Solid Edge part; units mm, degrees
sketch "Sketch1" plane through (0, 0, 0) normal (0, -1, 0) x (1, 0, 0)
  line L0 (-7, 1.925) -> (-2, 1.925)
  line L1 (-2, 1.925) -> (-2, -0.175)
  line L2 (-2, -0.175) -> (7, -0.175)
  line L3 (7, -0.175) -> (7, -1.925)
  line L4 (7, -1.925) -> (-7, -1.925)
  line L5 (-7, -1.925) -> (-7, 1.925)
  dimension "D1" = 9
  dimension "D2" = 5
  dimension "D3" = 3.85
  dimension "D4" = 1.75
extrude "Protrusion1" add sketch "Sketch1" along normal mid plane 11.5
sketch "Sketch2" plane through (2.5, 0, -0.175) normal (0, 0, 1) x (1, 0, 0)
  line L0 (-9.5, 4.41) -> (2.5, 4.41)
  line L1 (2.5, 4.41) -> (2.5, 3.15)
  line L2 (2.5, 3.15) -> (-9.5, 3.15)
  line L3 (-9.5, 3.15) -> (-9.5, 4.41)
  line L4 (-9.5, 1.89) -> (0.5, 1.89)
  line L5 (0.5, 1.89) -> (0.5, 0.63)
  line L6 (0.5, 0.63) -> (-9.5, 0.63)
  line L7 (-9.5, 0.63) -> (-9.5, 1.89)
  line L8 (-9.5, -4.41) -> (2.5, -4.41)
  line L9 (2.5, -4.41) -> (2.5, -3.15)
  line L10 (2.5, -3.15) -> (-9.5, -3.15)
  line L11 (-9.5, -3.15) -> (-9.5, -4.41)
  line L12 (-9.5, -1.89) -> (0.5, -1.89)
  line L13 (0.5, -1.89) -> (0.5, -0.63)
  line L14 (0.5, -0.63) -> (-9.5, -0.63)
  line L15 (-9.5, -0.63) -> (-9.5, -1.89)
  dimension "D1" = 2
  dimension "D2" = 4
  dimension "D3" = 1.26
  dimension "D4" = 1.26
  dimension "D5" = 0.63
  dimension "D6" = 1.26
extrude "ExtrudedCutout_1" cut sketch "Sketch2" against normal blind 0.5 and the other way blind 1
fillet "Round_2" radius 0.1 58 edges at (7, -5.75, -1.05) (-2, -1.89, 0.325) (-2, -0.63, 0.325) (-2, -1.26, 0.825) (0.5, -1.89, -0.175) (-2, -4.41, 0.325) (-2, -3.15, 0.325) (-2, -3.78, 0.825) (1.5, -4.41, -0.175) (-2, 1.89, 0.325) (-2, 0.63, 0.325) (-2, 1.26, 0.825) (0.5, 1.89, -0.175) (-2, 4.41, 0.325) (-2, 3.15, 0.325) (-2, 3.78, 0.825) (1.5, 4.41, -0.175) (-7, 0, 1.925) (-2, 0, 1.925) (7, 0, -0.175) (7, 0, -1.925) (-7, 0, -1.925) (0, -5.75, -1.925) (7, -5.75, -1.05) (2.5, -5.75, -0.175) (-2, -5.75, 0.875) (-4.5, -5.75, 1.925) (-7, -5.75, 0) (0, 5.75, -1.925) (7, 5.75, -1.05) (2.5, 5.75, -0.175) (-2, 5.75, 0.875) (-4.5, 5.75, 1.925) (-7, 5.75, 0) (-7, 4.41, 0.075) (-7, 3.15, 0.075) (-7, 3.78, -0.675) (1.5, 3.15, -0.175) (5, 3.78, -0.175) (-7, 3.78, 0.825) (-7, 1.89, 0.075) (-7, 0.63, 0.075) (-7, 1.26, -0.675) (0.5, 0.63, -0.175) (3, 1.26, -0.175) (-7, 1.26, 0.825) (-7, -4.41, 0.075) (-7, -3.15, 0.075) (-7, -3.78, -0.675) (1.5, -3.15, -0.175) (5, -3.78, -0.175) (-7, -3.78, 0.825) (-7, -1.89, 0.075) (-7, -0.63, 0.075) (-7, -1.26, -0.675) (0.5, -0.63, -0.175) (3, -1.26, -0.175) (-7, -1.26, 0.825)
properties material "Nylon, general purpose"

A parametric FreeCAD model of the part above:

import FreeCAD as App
import Part
import Sketcher

V = App.Vector


def edges_at(feature, points):
    """Names of the edges that pass closest to the given points."""
    edges = feature.Shape.Edges
    near = lambda p: min(range(len(edges)), key=lambda i: edges[i].distToShape(Part.Vertex(*p))[0])
    return sorted({f"Edge{near(p) + 1}" for p in points})

doc = App.newDocument("Part")
params = doc.addObject("Spreadsheet::Sheet", "Params")
for row, (alias, value) in enumerate([
    ("sketch1_width", "5 mm"),
    ("sketch1_width2", "14 mm"),
    ("sketch1_height", "2.1 mm"),
    ("sketch1_height2", "3.85 mm"),
    ("pad1_length", "11.5 mm"),
    ("sketch2_width", "12 mm"),
    ("sketch2_width2", "10 mm"),
    ("sketch2_height", "1.26 mm"),
    ("pocket1_length", "0.5 mm"),
    ("pocket1_length2", "1 mm"),
    ("fillet_radius", "0.1 mm"),
], start=1):
    params.set(f"A{row}", alias)
    params.set(f"B{row}", "=" + value)
    params.setAlias(f"B{row}", alias)

body = doc.addObject("PartDesign::Body", "Body")

# Sketch on XZ plane
sketch1 = doc.addObject("Sketcher::SketchObject", "Sketch")
body.addObject(sketch1)
sketch1.AttachmentSupport = (doc.XZ_Plane, [""])
sketch1.MapMode = "FlatFace"
sketch1.addGeometry([
    Part.LineSegment(V(-2, 1.9, 0), V(-7, 1.9, 0)),  # 0
    Part.LineSegment(V(-7, 1.9, 0), V(-7, -1.9, 0)),  # 1
    Part.LineSegment(V(-7, -1.9, 0), V(7, -1.9, 0)),  # 2
    Part.LineSegment(V(7, -1.9, 0), V(7, -0.2, 0)),  # 3
    Part.LineSegment(V(7, -0.2, 0), V(-2, -0.2, 0)),  # 4
    Part.LineSegment(V(-2, -0.2, 0), V(-2, 1.9, 0)),  # 5
], False)
sketch1.addConstraint([
    Sketcher.Constraint("Coincident", 0, 2, 1, 1),
    Sketcher.Constraint("Coincident", 1, 2, 2, 1),
    Sketcher.Constraint("Coincident", 2, 2, 3, 1),
    Sketcher.Constraint("Coincident", 3, 2, 4, 1),
    Sketcher.Constraint("Coincident", 4, 2, 5, 1),
    Sketcher.Constraint("Coincident", 5, 2, 0, 1),
    Sketcher.Constraint("Horizontal", 0),
    Sketcher.Constraint("Vertical", 1),
    Sketcher.Constraint("Horizontal", 2),
    Sketcher.Constraint("Vertical", 3),
    Sketcher.Constraint("Horizontal", 4),
    Sketcher.Constraint("Vertical", 5),
    Sketcher.Constraint("Symmetric", 0, 2, 2, 2, -1, 1),
    Sketcher.Constraint("DistanceX", 0, 2, 0, 1, 5.0),
    Sketcher.Constraint("DistanceX", 2, 1, 2, 2, 14.0),
    Sketcher.Constraint("DistanceY", 5, 1, 5, 2, 2.1),
    Sketcher.Constraint("DistanceY", 1, 2, 1, 1, 3.85),
])
sketch1.setExpression("Constraints[13]", "Params.sketch1_width")
sketch1.setExpression("Constraints[14]", "Params.sketch1_width2")
sketch1.setExpression("Constraints[15]", "Params.sketch1_height")
sketch1.setExpression("Constraints[16]", "Params.sketch1_height2")
pad1 = doc.addObject("PartDesign::Pad", "Pad")
body.addObject(pad1)
pad1.Profile = sketch1
pad1.setExpression("Length", "Params.pad1_length")
pad1.Midplane = True

# Sketch on XY plane
sketch2 = doc.addObject("Sketcher::SketchObject", "Sketch001")
body.addObject(sketch2)
sketch2.AttachmentSupport = (doc.XY_Plane, [""])
sketch2.MapMode = "FlatFace"
sketch2.AttachmentOffset = App.Placement(V(0, 0, -0.175), App.Rotation())
sketch2.addGeometry([
    Part.LineSegment(V(5, 4.4, 0), V(-7, 4.4, 0)),  # 0
    Part.LineSegment(V(-7, 4.4, 0), V(-7, 3.1, 0)),  # 1
    Part.LineSegment(V(-7, 3.1, 0), V(5, 3.1, 0)),  # 2
    Part.LineSegment(V(5, 3.1, 0), V(5, 4.4, 0)),  # 3
    Part.LineSegment(V(3, 1.9, 0), V(-7, 1.9, 0)),  # 4
    Part.LineSegment(V(-7, 1.9, 0), V(-7, 0.6, 0)),  # 5
    Part.LineSegment(V(-7, 0.6, 0), V(3, 0.6, 0)),  # 6
    Part.LineSegment(V(3, 0.6, 0), V(3, 1.9, 0)),  # 7
    Part.LineSegment(V(-7, -3.1, 0), V(-7, -4.4, 0)),  # 8
    Part.LineSegment(V(-7, -4.4, 0), V(5, -4.4, 0)),  # 9
    Part.LineSegment(V(5, -4.4, 0), V(5, -3.1, 0)),  # 10
    Part.LineSegment(V(5, -3.1, 0), V(-7, -3.1, 0)),  # 11
    Part.LineSegment(V(-7, -0.6, 0), V(-7, -1.9, 0)),  # 12
    Part.LineSegment(V(-7, -1.9, 0), V(3, -1.9, 0)),  # 13
    Part.LineSegment(V(3, -1.9, 0), V(3, -0.6, 0)),  # 14
    Part.LineSegment(V(3, -0.6, 0), V(-7, -0.6, 0)),  # 15
], False)
sketch2.addConstraint([
    Sketcher.Constraint("Coincident", 0, 2, 1, 1),
    Sketcher.Constraint("Coincident", 1, 2, 2, 1),
    Sketcher.Constraint("Coincident", 2, 2, 3, 1),
    Sketcher.Constraint("Coincident", 3, 2, 0, 1),
    Sketcher.Constraint("Coincident", 4, 2, 5, 1),
    Sketcher.Constraint("Coincident", 5, 2, 6, 1),
    Sketcher.Constraint("Coincident", 6, 2, 7, 1),
    Sketcher.Constraint("Coincident", 7, 2, 4, 1),
    Sketcher.Constraint("Coincident", 8, 2, 9, 1),
    Sketcher.Constraint("Coincident", 9, 2, 10, 1),
    Sketcher.Constraint("Coincident", 10, 2, 11, 1),
    Sketcher.Constraint("Coincident", 11, 2, 8, 1),
    Sketcher.Constraint("Coincident", 12, 2, 13, 1),
    Sketcher.Constraint("Coincident", 13, 2, 14, 1),
    Sketcher.Constraint("Coincident", 14, 2, 15, 1),
    Sketcher.Constraint("Coincident", 15, 2, 12, 1),
    Sketcher.Constraint("Horizontal", 0),
    Sketcher.Constraint("Vertical", 1),
    Sketcher.Constraint("Horizontal", 2),
    Sketcher.Constraint("Vertical", 3),
    Sketcher.Constraint("Horizontal", 4),
    Sketcher.Constraint("Vertical", 5),
    Sketcher.Constraint("Horizontal", 6),
    Sketcher.Constraint("Vertical", 7),
    Sketcher.Constraint("Vertical", 8),
    Sketcher.Constraint("Horizontal", 9),
    Sketcher.Constraint("Vertical", 10),
    Sketcher.Constraint("Horizontal", 11),
    Sketcher.Constraint("Vertical", 12),
    Sketcher.Constraint("Horizontal", 13),
    Sketcher.Constraint("Vertical", 14),
    Sketcher.Constraint("Horizontal", 15),
    Sketcher.Constraint("Symmetric", 0, 2, 8, 2, -1),
    Sketcher.Constraint("Symmetric", 2, 2, 10, 2, -1),
    Sketcher.Constraint("Symmetric", 4, 2, 12, 2, -1),
    Sketcher.Constraint("Symmetric", 6, 2, 14, 2, -1),
    Sketcher.Constraint("Vertical", 1, 2, 4, 2),
    Sketcher.Constraint("Equal", 3, 5),
    Sketcher.Constraint("DistanceX", 0, 2, 0, 1, 12.0),
    Sketcher.Constraint("DistanceX", 4, 2, 4, 1, 10.0),
    Sketcher.Constraint("DistanceX", 0, 2, -1, 1, 7.0),
    Sketcher.Constraint("DistanceY", 1, 2, 1, 1, 1.26),
    Sketcher.Constraint("DistanceY", 8, 2, 4, 2, 6.3),
    Sketcher.Constraint("DistanceY", 10, 2, 2, 2, 6.3),
])
sketch2.setExpression("Constraints[38]", "Params.sketch2_width")
sketch2.setExpression("Constraints[39]", "Params.sketch2_width2")
sketch2.setExpression("Constraints[41]", "Params.sketch2_height")
pocket1 = doc.addObject("PartDesign::Pocket", "Pocket")
body.addObject(pocket1)
pocket1.Profile = sketch2
pocket1.Type = "TwoLengths"
pocket1.setExpression("Length", "Params.pocket1_length")
pocket1.setExpression("Length2", "Params.pocket1_length2")
doc.recompute()

fillet = doc.addObject("PartDesign::Fillet", "Fillet")
body.addObject(fillet)
fillet.Base = (pocket1, edges_at(pocket1, [
    (7, -5.75, -1.05),
    (-2, -1.89, 0.325),
    (-2, -0.63, 0.325),
    (-2, -1.26, 0.825),
    (0.5, -1.89, -0.175),
    (-2, -4.41, 0.325),
    (-2, -3.15, 0.325),
    (-2, -3.78, 0.825),
    (1.5, -4.41, -0.175),
    (-2, 1.89, 0.325),
    (-2, 0.63, 0.325),
    (-2, 1.26, 0.825),
    (0.5, 1.89, -0.175),
    (-2, 4.41, 0.325),
    (-2, 3.15, 0.325),
    (-2, 3.78, 0.825),
    (1.5, 4.41, -0.175),
    (-7, 0, 1.925),
    (-2, 0, 1.925),
    (7, 0, -0.175),
    (7, 0, -1.925),
    (-7, 0, -1.925),
    (0, -5.75, -1.925),
    (7, -5.75, -1.05),
    (2.5, -5.75, -0.175),
    (-2, -5.75, 0.875),
    (-4.5, -5.75, 1.925),
    (-7, -5.75, 0),
    (0, 5.75, -1.925),
    (7, 5.75, -1.05),
    (2.5, 5.75, -0.175),
    (-2, 5.75, 0.875),
    (-4.5, 5.75, 1.925),
    (-7, 5.75, 0),
    (-7, 4.41, 0.075),
    (-7, 3.15, 0.075),
    (-7, 3.78, -0.675),
    (1.5, 3.15, -0.175),
    (5, 3.78, -0.175),
    (-7, 3.78, 0.825),
    (-7, 1.89, 0.075),
    (-7, 0.63, 0.075),
    (-7, 1.26, -0.675),
    (0.5, 0.63, -0.175),
    (3, 1.26, -0.175),
    (-7, 1.26, 0.825),
    (-7, -4.41, 0.075),
    (-7, -3.15, 0.075),
    (-7, -3.78, -0.675),
    (1.5, -3.15, -0.175),
    (5, -3.78, -0.175),
    (-7, -3.78, 0.825),
    (-7, -1.89, 0.075),
    (-7, -0.63, 0.075),
    (-7, -1.26, -0.675),
    (0.5, -0.63, -0.175),
    (3, -1.26, -0.175),
    (-7, -1.26, 0.825),
]))
fillet.setExpression("Radius", "Params.fillet_radius")

doc.recompute()
